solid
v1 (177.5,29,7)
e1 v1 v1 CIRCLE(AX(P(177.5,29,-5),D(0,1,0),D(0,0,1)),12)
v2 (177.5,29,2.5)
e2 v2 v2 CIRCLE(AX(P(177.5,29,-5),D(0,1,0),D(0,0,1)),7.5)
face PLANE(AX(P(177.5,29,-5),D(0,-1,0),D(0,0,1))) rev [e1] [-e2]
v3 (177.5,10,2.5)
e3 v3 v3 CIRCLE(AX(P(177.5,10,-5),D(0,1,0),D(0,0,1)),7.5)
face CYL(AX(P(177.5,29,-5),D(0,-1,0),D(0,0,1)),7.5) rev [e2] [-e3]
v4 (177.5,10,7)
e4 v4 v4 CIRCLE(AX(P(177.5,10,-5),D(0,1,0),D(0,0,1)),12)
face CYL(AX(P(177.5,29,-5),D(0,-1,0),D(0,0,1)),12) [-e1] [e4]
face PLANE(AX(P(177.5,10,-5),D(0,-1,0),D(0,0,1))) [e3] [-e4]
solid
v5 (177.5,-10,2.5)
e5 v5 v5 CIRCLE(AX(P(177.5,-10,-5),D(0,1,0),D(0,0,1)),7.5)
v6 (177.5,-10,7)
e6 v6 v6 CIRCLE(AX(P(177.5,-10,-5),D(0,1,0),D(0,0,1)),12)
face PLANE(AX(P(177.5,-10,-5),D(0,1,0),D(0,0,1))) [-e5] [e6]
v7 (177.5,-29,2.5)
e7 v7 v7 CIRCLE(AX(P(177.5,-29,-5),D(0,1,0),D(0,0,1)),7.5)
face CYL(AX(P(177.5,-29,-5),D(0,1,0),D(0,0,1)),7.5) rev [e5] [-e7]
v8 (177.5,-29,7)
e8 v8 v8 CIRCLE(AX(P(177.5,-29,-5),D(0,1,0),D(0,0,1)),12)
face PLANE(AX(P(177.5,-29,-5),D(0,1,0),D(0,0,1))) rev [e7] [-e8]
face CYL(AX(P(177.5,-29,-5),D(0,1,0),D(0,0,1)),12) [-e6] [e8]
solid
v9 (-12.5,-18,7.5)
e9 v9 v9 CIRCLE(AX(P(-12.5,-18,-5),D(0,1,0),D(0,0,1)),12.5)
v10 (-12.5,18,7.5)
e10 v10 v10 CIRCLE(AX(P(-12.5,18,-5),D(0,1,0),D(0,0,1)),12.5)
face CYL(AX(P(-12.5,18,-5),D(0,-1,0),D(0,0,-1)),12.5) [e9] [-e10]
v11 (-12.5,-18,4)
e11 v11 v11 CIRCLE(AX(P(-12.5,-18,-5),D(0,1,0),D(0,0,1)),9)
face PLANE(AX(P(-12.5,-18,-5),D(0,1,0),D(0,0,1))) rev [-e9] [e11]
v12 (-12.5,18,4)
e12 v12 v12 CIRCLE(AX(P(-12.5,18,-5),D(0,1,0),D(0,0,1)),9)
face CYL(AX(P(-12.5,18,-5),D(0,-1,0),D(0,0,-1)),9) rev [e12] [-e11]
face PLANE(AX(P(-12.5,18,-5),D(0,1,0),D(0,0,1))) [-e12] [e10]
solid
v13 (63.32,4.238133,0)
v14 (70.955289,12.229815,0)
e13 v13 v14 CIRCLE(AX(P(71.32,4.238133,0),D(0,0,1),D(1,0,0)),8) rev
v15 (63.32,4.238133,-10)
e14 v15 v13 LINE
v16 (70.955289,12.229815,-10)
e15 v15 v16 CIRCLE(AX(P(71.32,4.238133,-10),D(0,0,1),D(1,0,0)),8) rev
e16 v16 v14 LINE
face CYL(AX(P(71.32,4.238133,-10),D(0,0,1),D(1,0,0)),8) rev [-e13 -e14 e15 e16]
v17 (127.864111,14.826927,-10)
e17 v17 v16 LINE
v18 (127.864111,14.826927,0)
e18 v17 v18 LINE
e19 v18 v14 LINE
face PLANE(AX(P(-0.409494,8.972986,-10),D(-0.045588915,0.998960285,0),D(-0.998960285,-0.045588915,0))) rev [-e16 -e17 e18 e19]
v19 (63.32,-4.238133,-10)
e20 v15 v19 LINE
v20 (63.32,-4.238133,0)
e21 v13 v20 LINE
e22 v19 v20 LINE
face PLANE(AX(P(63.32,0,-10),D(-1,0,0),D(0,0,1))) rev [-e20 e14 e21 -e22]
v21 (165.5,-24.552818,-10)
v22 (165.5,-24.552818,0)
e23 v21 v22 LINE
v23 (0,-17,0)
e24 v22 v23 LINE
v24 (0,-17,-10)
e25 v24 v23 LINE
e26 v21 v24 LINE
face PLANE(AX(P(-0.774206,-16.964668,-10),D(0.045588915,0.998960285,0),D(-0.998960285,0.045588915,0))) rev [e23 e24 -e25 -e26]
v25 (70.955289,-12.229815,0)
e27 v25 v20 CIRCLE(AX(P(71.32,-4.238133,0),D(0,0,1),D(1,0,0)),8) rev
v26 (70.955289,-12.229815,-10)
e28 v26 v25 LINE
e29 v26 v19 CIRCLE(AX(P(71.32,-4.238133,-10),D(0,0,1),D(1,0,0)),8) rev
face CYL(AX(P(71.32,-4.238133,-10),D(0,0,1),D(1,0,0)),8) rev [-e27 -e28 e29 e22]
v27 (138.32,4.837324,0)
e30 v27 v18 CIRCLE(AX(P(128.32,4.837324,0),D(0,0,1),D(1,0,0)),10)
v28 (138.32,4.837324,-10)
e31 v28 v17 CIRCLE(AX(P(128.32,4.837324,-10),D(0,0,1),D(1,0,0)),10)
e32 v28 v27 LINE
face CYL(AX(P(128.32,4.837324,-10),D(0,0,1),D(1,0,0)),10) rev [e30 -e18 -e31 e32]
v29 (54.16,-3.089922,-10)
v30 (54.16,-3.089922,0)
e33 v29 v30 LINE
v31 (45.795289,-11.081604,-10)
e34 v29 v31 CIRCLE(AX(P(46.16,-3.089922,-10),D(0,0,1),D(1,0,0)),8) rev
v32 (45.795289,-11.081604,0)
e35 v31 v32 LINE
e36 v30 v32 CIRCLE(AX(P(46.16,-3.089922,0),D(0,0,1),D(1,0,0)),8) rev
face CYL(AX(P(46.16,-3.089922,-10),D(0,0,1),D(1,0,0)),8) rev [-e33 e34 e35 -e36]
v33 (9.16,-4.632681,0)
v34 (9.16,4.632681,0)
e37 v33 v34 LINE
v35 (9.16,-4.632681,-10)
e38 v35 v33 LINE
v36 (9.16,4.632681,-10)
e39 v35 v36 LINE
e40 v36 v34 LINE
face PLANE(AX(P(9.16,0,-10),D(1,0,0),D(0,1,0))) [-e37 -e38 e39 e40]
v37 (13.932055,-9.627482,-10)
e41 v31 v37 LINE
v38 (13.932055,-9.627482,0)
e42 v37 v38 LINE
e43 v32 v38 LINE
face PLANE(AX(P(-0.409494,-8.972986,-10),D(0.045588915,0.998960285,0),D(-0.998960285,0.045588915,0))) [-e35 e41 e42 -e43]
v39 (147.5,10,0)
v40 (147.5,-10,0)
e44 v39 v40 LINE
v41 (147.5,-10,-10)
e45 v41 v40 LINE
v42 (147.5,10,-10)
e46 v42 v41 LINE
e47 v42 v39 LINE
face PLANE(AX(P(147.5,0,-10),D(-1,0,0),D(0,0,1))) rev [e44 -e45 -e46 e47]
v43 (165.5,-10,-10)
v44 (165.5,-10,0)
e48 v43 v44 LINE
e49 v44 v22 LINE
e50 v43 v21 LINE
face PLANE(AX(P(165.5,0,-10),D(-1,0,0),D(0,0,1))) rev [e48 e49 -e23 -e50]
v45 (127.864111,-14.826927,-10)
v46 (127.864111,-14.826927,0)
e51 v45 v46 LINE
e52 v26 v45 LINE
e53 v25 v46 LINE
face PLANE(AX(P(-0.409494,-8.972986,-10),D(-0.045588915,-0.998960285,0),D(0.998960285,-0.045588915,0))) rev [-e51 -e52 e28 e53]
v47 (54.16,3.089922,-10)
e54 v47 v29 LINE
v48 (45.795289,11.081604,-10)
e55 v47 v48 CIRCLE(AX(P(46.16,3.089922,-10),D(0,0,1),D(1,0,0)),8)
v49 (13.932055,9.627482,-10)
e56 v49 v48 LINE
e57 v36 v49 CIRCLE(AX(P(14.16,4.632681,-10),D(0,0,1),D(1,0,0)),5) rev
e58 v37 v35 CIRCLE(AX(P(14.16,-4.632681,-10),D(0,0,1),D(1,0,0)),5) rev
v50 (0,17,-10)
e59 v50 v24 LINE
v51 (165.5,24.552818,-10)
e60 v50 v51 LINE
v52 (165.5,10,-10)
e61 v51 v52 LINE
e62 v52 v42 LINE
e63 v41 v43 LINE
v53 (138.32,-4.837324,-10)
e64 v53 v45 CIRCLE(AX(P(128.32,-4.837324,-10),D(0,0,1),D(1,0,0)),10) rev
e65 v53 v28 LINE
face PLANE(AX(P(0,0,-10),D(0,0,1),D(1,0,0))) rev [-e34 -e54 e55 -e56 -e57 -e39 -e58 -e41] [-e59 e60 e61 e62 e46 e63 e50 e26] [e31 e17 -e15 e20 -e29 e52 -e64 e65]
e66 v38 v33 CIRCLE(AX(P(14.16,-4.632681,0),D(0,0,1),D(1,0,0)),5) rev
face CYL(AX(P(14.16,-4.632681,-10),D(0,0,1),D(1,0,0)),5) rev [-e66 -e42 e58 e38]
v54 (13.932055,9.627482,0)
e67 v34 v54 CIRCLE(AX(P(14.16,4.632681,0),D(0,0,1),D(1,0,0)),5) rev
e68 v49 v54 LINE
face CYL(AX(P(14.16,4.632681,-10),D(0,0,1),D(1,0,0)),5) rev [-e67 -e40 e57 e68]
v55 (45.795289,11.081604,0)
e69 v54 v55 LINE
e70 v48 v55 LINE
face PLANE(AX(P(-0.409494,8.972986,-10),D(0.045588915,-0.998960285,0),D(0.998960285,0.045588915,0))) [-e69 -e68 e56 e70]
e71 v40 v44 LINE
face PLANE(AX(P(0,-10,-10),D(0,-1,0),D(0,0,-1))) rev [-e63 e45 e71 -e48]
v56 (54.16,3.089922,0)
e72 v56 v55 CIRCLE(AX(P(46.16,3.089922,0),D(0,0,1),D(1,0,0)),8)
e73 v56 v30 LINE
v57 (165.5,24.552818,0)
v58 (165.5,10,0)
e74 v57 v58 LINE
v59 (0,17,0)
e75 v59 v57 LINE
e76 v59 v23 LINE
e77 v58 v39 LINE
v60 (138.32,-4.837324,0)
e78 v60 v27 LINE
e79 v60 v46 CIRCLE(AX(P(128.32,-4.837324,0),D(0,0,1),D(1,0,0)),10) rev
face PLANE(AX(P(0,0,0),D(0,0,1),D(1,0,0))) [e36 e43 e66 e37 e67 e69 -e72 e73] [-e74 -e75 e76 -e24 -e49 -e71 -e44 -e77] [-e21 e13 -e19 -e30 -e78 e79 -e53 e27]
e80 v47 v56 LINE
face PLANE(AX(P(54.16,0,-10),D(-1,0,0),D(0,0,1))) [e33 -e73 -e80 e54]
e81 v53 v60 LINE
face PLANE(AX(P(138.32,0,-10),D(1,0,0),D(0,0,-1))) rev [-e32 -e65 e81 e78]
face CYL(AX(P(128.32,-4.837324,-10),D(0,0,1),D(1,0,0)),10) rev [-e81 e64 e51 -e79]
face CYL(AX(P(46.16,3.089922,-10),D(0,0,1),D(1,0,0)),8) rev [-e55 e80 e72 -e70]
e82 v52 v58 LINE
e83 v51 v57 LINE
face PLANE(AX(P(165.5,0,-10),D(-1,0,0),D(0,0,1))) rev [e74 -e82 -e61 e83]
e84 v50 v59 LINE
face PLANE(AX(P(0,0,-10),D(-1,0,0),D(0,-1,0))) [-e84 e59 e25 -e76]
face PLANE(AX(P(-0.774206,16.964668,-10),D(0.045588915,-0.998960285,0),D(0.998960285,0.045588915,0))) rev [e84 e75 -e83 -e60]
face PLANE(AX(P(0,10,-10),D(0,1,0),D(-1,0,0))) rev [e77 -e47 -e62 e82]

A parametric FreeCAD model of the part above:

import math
import FreeCAD as App
import Part
import Sketcher

V = App.Vector
Q = App.Units.Quantity


def add_polygon(sketch, points):
    """Adds a closed chain of lines whose ends are joined by coincident constraints."""
    first, n = sketch.GeometryCount, len(points)
    for a, b in zip(points, points[1:] + points[:1]):
        sketch.addGeometry(Part.LineSegment(App.Vector(*a, 0), App.Vector(*b, 0)), False)
    for i in range(n):
        sketch.addConstraint(Sketcher.Constraint("Coincident", first + i, 2, first + (i + 1) % n, 1))

doc = App.newDocument("Part")
body = doc.addObject("PartDesign::Body", "Body")

# Sketch on XY plane
sketch1 = body.newObject("Sketcher::SketchObject", "Sketch")
sketch1.AttachmentSupport = (doc.getObject("XY_Plane"), [""])
sketch1.MapMode = "FlatFace"
add_polygon(sketch1, [(0, -17), (165.5, -24.552818), (165.5, -10), (147.5, -10), (147.5, 10), (165.5, 10), (165.5, 24.552818), (0, 17)])  # lines 0-7
sketch1.addGeometry(Part.LineSegment(V(138.32, 4.837324, 0), V(138.32, -4.837324, 0)), False)  # 8
sketch1.addGeometry(Part.ArcOfCircle(Part.Circle(V(128.32, -4.837324, 0), V(0, 0, 1), 10), math.radians(-92.612958), math.radians(0)), False)  # 9
sketch1.addGeometry(Part.LineSegment(V(127.864111, -14.826927, 0), V(70.955289, -12.229815, 0)), False)  # 10
sketch1.addGeometry(Part.ArcOfCircle(Part.Circle(V(71.32, -4.238133, 0), V(0, 0, 1), 8), math.radians(180), math.radians(267.387042)), False)  # 11
sketch1.addGeometry(Part.LineSegment(V(63.32, -4.238133, 0), V(63.32, 4.238133, 0)), False)  # 12
sketch1.addGeometry(Part.ArcOfCircle(Part.Circle(V(71.32, 4.238133, 0), V(0, 0, 1), 8), math.radians(92.612958), math.radians(180)), False)  # 13
sketch1.addGeometry(Part.LineSegment(V(70.955289, 12.229815, 0), V(127.864111, 14.826927, 0)), False)  # 14
sketch1.addGeometry(Part.ArcOfCircle(Part.Circle(V(128.32, 4.837324, 0), V(0, 0, 1), 10), math.radians(0), math.radians(92.612958)), False)  # 15
sketch1.addGeometry(Part.ArcOfCircle(Part.Circle(V(14.16, 4.632681, 0), V(0, 0, 1), 5), math.radians(92.612958), math.radians(180)), False)  # 16
sketch1.addGeometry(Part.LineSegment(V(13.932055, 9.627482, 0), V(45.795289, 11.081604, 0)), False)  # 17
sketch1.addGeometry(Part.ArcOfCircle(Part.Circle(V(46.16, 3.089922, 0), V(0, 0, 1), 8), math.radians(0), math.radians(92.612958)), False)  # 18
sketch1.addGeometry(Part.LineSegment(V(54.16, 3.089922, 0), V(54.16, -3.089922, 0)), False)  # 19
sketch1.addGeometry(Part.ArcOfCircle(Part.Circle(V(46.16, -3.089922, 0), V(0, 0, 1), 8), math.radians(-92.612958), math.radians(0)), False)  # 20
sketch1.addGeometry(Part.LineSegment(V(45.795289, -11.081604, 0), V(13.932055, -9.627482, 0)), False)  # 21
sketch1.addGeometry(Part.ArcOfCircle(Part.Circle(V(14.16, -4.632681, 0), V(0, 0, 1), 5), math.radians(180), math.radians(267.387042)), False)  # 22
sketch1.addGeometry(Part.LineSegment(V(9.16, -4.632681, 0), V(9.16, 4.632681, 0)), False)  # 23
sketch1.addConstraint([
    Sketcher.Constraint("Tangent", 8, 2, 9, 2),
    Sketcher.Constraint("Tangent", 9, 1, 10, 1),
    Sketcher.Constraint("Tangent", 10, 2, 11, 2),
    Sketcher.Constraint("Tangent", 11, 1, 12, 1),
    Sketcher.Constraint("Tangent", 12, 2, 13, 2),
    Sketcher.Constraint("Tangent", 13, 1, 14, 1),
    Sketcher.Constraint("Tangent", 14, 2, 15, 2),
    Sketcher.Constraint("Tangent", 15, 1, 8, 1),
    Sketcher.Constraint("Tangent", 16, 1, 17, 1),
    Sketcher.Constraint("Tangent", 17, 2, 18, 2),
    Sketcher.Constraint("Tangent", 18, 1, 19, 1),
    Sketcher.Constraint("Tangent", 19, 2, 20, 2),
    Sketcher.Constraint("Tangent", 20, 1, 21, 1),
    Sketcher.Constraint("Tangent", 21, 2, 22, 2),
    Sketcher.Constraint("Tangent", 22, 1, 23, 1),
    Sketcher.Constraint("Tangent", 23, 2, 16, 2),
    Sketcher.Constraint("Vertical", 1),
    Sketcher.Constraint("Horizontal", 2),
    Sketcher.Constraint("Vertical", 3),
    Sketcher.Constraint("Horizontal", 4),
    Sketcher.Constraint("Vertical", 5),
    Sketcher.Constraint("Vertical", 7),
    Sketcher.Constraint("Vertical", 8),
    Sketcher.Constraint("Vertical", 12),
    Sketcher.Constraint("Vertical", 19),
    Sketcher.Constraint("Vertical", 23),
    Sketcher.Constraint("Equal", 11, 13),
    Sketcher.Constraint("Equal", 9, 15),
    Sketcher.Constraint("Equal", 13, 18),
    Sketcher.Constraint("Equal", 18, 20),
    Sketcher.Constraint("Equal", 16, 22),
    Sketcher.Constraint("Symmetric", 6, 2, 7, 2, -1, 1),
    Sketcher.Constraint("Symmetric", 1, 2, 4, 2, -1),
    Sketcher.Constraint("Symmetric", 10, 2, 13, 1, -1),
    Sketcher.Constraint("Symmetric", 17, 2, 20, 1, -1),
    Sketcher.Constraint("Parallel", 0, 10),
    Sketcher.Constraint("Parallel", 6, 14),
    Sketcher.Constraint("Parallel", 14, 17),
    Sketcher.Constraint("Radius", 9, Q("10 mm")),
    Sketcher.Constraint("Radius", 11, Q("8 mm")),
    Sketcher.Constraint("Radius", 16, Q("5 mm")),
    Sketcher.Constraint("DistanceX", 2, 2, 2, 1, Q("18 mm")),
    Sketcher.Constraint("DistanceY", 3, 1, 3, 2, Q("20 mm")),
    Sketcher.Constraint("DistanceY", 7, 2, 7, 1, Q("34 mm")),
    Sketcher.Constraint("DistanceX", 11, 3, 9, 3, Q("57 mm")),
    Sketcher.Constraint("DistanceX", 16, 3, 18, 3, Q("32 mm")),
    Sketcher.Constraint("DistanceX", -1, 1, 0, 2, Q("165.5 mm")),
    Sketcher.Constraint("DistanceX", -1, 1, 9, 3, Q("128.32 mm")),
    Sketcher.Constraint("DistanceX", -1, 1, 16, 3, Q("14.16 mm")),
    Sketcher.Constraint("DistanceY", 1, 1, 1, 2, Q("14.552818 mm")),
    Sketcher.Constraint("DistanceY", 23, 1, 23, 2, Q("9.265361 mm")),
    Sketcher.Constraint("DistanceY", 8, 2, 8, 1, Q("9.674648 mm")),
])
pad1 = body.newObject("PartDesign::Pad", "Pad")
pad1.Profile = sketch1
pad1.Length = 10
pad1.Reversed = True
body2 = doc.addObject("PartDesign::Body", "Body001")

# Sketch on XZ plane
sketch2 = body2.newObject("Sketcher::SketchObject", "Sketch001")
sketch2.AttachmentSupport = (doc.getObject("XZ_Plane001"), [""])
sketch2.MapMode = "FlatFace"
sketch2.addGeometry([
    Part.Circle(V(-12.5, -5, 0), V(0, 0, 1), 12.5),
    Part.Circle(V(-12.5, -5, 0), V(0, 0, 1), 9),
], False)
sketch2.addConstraint([
    Sketcher.Constraint("Coincident", 1, 3, 0, 3),
    Sketcher.Constraint("Diameter", 0, Q("25 mm")),
    Sketcher.Constraint("Diameter", 1, Q("18 mm")),
    Sketcher.Constraint("DistanceY", 0, 3, -1, 1, Q("5 mm")),
    Sketcher.Constraint("DistanceX", 0, 3, -1, 1, Q("12.5 mm")),
])
pad2 = body2.newObject("PartDesign::Pad", "Pad001")
pad2.Profile = sketch2
pad2.Length = 36
pad2.Midplane = True
body3 = doc.addObject("PartDesign::Body", "Body002")

# Sketch on XZ plane
sketch3 = body3.newObject("Sketcher::SketchObject", "Sketch002")
sketch3.AttachmentSupport = (doc.getObject("XZ_Plane002"), [""])
sketch3.MapMode = "FlatFace"
sketch3.AttachmentOffset = App.Placement(V(0, 0, 10), App.Rotation())
sketch3.addGeometry([
    Part.Circle(V(177.5, -5, 0), V(0, 0, 1), 12),
    Part.Circle(V(177.5, -5, 0), V(0, 0, 1), 7.5),
], False)
sketch3.addConstraint([
    Sketcher.Constraint("Coincident", 1, 3, 0, 3),
    Sketcher.Constraint("Diameter", 0, Q("24 mm")),
    Sketcher.Constraint("Diameter", 1, Q("15 mm")),
    Sketcher.Constraint("DistanceY", 0, 3, -1, 1, Q("5 mm")),
    Sketcher.Constraint("DistanceX", -1, 1, 0, 3, Q("177.5 mm")),
])
pad3 = body3.newObject("PartDesign::Pad", "Pad002")
pad3.Profile = sketch3
pad3.Length = 19
body4 = doc.addObject("PartDesign::Body", "Body003")
doc.recompute()

mirroring = doc.addObject("Part::Mirroring", "Mirroring")
mirroring.Source = body3
mirroring.Base = V(0, 0, 0)
mirroring.Normal = V(0, 1, 0)
body4.BaseFeature = mirroring
doc.recompute()
mirroring.Visibility = False

doc.recompute()
